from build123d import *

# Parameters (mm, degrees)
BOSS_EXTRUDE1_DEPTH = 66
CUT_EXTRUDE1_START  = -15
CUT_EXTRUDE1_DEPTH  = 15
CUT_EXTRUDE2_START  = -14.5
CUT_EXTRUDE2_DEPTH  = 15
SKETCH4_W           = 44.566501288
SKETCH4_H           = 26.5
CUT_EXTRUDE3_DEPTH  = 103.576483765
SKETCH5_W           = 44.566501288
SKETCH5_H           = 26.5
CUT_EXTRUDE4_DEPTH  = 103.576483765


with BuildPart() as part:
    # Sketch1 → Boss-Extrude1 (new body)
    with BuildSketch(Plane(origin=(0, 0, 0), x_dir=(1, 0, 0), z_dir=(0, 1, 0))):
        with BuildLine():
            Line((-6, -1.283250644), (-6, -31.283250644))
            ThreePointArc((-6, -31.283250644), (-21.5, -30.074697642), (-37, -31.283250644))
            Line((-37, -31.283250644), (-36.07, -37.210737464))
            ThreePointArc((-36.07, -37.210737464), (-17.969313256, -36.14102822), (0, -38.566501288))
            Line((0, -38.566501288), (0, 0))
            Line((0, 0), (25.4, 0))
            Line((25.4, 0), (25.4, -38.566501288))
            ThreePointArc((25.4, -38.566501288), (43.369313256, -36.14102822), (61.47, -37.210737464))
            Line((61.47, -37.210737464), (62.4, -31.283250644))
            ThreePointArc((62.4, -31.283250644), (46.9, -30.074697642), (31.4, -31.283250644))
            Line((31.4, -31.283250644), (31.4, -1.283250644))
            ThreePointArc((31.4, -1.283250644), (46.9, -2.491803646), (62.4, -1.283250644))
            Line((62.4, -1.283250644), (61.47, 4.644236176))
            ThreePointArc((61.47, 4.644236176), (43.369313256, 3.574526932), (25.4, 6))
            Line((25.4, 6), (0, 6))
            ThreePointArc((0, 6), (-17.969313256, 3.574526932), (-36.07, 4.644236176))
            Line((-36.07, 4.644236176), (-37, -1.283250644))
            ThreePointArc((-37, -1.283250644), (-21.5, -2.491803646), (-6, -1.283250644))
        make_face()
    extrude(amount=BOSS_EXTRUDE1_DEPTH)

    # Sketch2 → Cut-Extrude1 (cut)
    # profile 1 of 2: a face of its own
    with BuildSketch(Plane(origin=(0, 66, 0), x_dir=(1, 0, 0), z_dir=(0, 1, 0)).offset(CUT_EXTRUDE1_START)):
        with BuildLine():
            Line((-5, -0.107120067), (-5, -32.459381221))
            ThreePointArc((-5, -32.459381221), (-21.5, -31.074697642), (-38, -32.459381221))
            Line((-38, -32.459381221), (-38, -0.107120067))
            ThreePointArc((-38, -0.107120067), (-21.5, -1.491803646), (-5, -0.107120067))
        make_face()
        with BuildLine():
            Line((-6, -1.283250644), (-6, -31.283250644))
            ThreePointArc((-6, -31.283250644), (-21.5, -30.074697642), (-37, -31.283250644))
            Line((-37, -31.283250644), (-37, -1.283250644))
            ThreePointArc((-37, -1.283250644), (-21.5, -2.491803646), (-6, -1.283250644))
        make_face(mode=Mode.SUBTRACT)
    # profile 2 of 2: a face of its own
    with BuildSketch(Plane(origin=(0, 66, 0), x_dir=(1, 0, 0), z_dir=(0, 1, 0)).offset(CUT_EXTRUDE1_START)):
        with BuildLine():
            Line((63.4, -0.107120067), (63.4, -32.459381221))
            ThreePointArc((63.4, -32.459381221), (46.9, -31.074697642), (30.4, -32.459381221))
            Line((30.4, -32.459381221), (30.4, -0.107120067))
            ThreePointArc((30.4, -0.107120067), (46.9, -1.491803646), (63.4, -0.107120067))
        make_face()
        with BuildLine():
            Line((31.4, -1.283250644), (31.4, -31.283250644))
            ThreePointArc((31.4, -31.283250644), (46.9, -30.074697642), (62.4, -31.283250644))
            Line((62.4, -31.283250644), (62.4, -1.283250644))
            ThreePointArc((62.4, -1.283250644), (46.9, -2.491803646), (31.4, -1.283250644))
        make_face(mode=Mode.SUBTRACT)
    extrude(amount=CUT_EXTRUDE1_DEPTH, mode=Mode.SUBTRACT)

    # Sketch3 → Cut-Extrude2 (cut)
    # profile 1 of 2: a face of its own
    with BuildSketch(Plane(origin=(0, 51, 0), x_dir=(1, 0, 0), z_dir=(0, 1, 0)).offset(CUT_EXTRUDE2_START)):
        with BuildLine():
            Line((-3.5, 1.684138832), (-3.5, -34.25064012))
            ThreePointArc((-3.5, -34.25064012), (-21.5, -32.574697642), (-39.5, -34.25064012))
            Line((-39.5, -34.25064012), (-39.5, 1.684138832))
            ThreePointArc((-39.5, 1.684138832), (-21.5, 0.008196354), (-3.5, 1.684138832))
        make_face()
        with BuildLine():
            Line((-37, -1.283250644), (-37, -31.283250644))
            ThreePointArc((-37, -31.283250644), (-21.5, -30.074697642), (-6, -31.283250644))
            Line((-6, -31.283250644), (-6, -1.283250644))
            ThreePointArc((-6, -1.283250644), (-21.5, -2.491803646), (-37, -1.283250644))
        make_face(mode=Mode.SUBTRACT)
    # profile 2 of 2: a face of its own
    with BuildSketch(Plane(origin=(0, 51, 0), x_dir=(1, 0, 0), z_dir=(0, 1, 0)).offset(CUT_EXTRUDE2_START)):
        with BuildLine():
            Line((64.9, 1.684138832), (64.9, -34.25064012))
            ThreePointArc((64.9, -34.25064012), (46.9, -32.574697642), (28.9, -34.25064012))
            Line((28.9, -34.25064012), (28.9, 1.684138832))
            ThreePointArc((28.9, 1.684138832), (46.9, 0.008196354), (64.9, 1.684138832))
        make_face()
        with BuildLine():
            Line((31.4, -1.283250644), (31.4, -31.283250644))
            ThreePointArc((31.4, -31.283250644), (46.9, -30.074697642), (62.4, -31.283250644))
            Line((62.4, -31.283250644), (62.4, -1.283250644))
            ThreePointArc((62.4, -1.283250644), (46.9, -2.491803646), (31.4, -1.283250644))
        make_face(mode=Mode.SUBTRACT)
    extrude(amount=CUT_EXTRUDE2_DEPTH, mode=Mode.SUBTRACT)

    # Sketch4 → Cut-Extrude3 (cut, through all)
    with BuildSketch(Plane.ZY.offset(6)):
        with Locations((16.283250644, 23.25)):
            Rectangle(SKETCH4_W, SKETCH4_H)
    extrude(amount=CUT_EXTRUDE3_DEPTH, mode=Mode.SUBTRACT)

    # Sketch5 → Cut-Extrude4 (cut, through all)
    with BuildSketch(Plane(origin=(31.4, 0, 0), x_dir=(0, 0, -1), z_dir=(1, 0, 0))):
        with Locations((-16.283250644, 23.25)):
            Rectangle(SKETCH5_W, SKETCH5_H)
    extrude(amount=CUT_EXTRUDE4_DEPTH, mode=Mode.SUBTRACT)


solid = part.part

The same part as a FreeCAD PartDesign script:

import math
import FreeCAD as App
import Part
import Sketcher
Q = App.Units.Quantity


def add_polygon(sketch, points):
    """Adds a closed chain of lines whose ends are joined by coincident constraints."""
    first, n = sketch.GeometryCount, len(points)
    for a, b in zip(points, points[1:] + points[:1]):
        sketch.addGeometry(Part.LineSegment(App.Vector(*a, 0), App.Vector(*b, 0)), False)
    for i in range(n):
        sketch.addConstraint(Sketcher.Constraint("Coincident", first + i, 2, first + (i + 1) % n, 1))

doc = App.newDocument("Part")
params = doc.addObject("Spreadsheet::Sheet", "Params")
for row, (alias, value) in enumerate([
    ("sketch1_radius", "100 mm"),
    ("sketch1_radius2", "94 mm"),
    ("sketch1_height", "30 mm"),
    ("sketch1_width", "25.4 mm"),
    ("pad1_length", "66 mm"),
    ("sketch2_radius", "99 mm"),
    ("sketch2_radius2", "100 mm"),
    ("sketch2_height", "30 mm"),
    ("pocket1_length", "15 mm"),
    ("sketch3_radius", "100 mm"),
    ("sketch3_radius2", "97.5 mm"),
    ("sketch3_height", "30 mm"),
    ("pocket2_length", "15 mm"),
    ("sketch4_width", "26.5 mm"),
    ("sketch5_width", "26.5 mm"),
], start=1):
    params.set(f"A{row}", alias)
    params.set(f"B{row}", "=" + value)
    params.setAlias(f"B{row}", alias)

body = doc.addObject("PartDesign::Body", "Body")

# Sketch on XZ plane
sketch1 = body.newObject("Sketcher::SketchObject", "Sketch")
sketch1.AttachmentSupport = (doc.getObject("XZ_Plane"), [""])
sketch1.MapMode = "FlatFace"
sketch1.addGeometry([
    Part.LineSegment(App.Vector(-6, 1, 0), App.Vector(-6, 31, 0)),  # 0
    Part.ArcOfCircle(Part.Circle(App.Vector(-22, 130, 0), App.Vector(0, 0, 1), 100), math.radians(-98.92), math.radians(-81.08)),  # 1
    Part.LineSegment(App.Vector(-37, 31, 0), App.Vector(-36, 37, 0)),  # 2
    Part.ArcOfCircle(Part.Circle(App.Vector(-22, 130, 0), App.Vector(0, 0, 1), 94), math.radians(-99), math.radians(-77)),  # 3
    Part.LineSegment(App.Vector(0, 39, 0), App.Vector(0, 0, 0)),  # 4
    Part.LineSegment(App.Vector(0, 0, 0), App.Vector(25, 0, 0)),  # 5
    Part.LineSegment(App.Vector(25, 0, 0), App.Vector(25, 39, 0)),  # 6
    Part.ArcOfCircle(Part.Circle(App.Vector(47, 130, 0), App.Vector(0, 0, 1), 94), math.radians(-103), math.radians(-81)),  # 7
    Part.LineSegment(App.Vector(61, 37, 0), App.Vector(62, 31, 0)),  # 8
    Part.ArcOfCircle(Part.Circle(App.Vector(47, 130, 0), App.Vector(0, 0, 1), 100), math.radians(-98.92), math.radians(-81.08)),  # 9
    Part.LineSegment(App.Vector(31, 31, 0), App.Vector(31, 1, 0)),  # 10
    Part.ArcOfCircle(Part.Circle(App.Vector(47, -98, 0), App.Vector(0, 0, 1), 100), math.radians(81.08), math.radians(98.92)),  # 11
    Part.LineSegment(App.Vector(62, 1, 0), App.Vector(61, -5, 0)),  # 12
    Part.ArcOfCircle(Part.Circle(App.Vector(47, -98, 0), App.Vector(0, 0, 1), 94), math.radians(81), math.radians(103)),  # 13
    Part.LineSegment(App.Vector(25, -6, 0), App.Vector(0, -6, 0)),  # 14
    Part.ArcOfCircle(Part.Circle(App.Vector(-22, -98, 0), App.Vector(0, 0, 1), 94), math.radians(77), math.radians(99)),  # 15
    Part.LineSegment(App.Vector(-36, -5, 0), App.Vector(-37, 1, 0)),  # 16
    Part.ArcOfCircle(Part.Circle(App.Vector(-22, -98, 0), App.Vector(0, 0, 1), 100), math.radians(81.08), math.radians(98.92)),  # 17
], False)
sketch1.addConstraint([
    Sketcher.Constraint("Coincident", 0, 2, 1, 2),
    Sketcher.Constraint("Coincident", 1, 1, 2, 1),
    Sketcher.Constraint("Coincident", 2, 2, 3, 1),
    Sketcher.Constraint("Coincident", 3, 2, 4, 1),
    Sketcher.Constraint("Coincident", 4, 2, 5, 1),
    Sketcher.Constraint("Coincident", 5, 2, 6, 1),
    Sketcher.Constraint("Coincident", 6, 2, 7, 1),
    Sketcher.Constraint("Coincident", 7, 2, 8, 1),
    Sketcher.Constraint("Coincident", 8, 2, 9, 2),
    Sketcher.Constraint("Coincident", 9, 1, 10, 1),
    Sketcher.Constraint("Coincident", 10, 2, 11, 2),
    Sketcher.Constraint("Coincident", 11, 1, 12, 1),
    Sketcher.Constraint("Coincident", 12, 2, 13, 1),
    Sketcher.Constraint("Coincident", 13, 2, 14, 1),
    Sketcher.Constraint("Coincident", 14, 2, 15, 1),
    Sketcher.Constraint("Coincident", 15, 2, 16, 1),
    Sketcher.Constraint("Coincident", 16, 2, 17, 2),
    Sketcher.Constraint("Coincident", 17, 1, 0, 1),
    Sketcher.Constraint("Vertical", 0),
    Sketcher.Constraint("Vertical", 4),
    Sketcher.Constraint("Horizontal", 5),
    Sketcher.Constraint("Vertical", 6),
    Sketcher.Constraint("Vertical", 10),
    Sketcher.Constraint("Horizontal", 14),
    Sketcher.Constraint("Coincident", 4, 2, -1, 1),
    Sketcher.Constraint("Coincident", 3, 3, 1, 3),
    Sketcher.Constraint("Coincident", 9, 3, 7, 3),
    Sketcher.Constraint("Coincident", 13, 3, 11, 3),
    Sketcher.Constraint("Coincident", 17, 3, 15, 3),
    Sketcher.Constraint("Equal", 3, 7),
    Sketcher.Constraint("Equal", 1, 9),
    Sketcher.Constraint("Equal", 9, 11),
    Sketcher.Constraint("Equal", 7, 13),
    Sketcher.Constraint("Equal", 13, 15),
    Sketcher.Constraint("Equal", 11, 17),
    Sketcher.Constraint("PointOnObject", 14, 2, -2),
    Sketcher.Constraint("Parallel", 2, 12),
    Sketcher.Constraint("Parallel", 8, 16),
    Sketcher.Constraint("Horizontal", 3, 3, 7, 3),
    Sketcher.Constraint("Horizontal", 13, 3, 15, 3),
    Sketcher.Constraint("Horizontal", 0, 2, 1, 1),
    Sketcher.Constraint("Horizontal", 3, 2, 6, 2),
    Sketcher.Constraint("Horizontal", 2, 2, 7, 2),
    Sketcher.Constraint("Horizontal", 1, 1, 8, 2),
    Sketcher.Constraint("Horizontal", 8, 2, 9, 1),
    Sketcher.Constraint("Horizontal", 10, 2, 11, 1),
    Sketcher.Constraint("Horizontal", 12, 2, 15, 2),
    Sketcher.Constraint("Horizontal", 16, 2, 17, 1),
    Sketcher.Constraint("Vertical", 9, 3, 11, 3),
    Sketcher.Constraint("Radius", 1, Q("100 mm")),
    Sketcher.Constraint("Radius", 3, Q("94 mm")),
    Sketcher.Constraint("DistanceY", 0, 1, 0, 2, Q("30 mm")),
    Sketcher.Constraint("DistanceX", 5, 1, 5, 2, Q("25.4 mm")),
    Sketcher.Constraint("DistanceX", 0, 2, -1, 1, Q("6 mm")),
    Sketcher.Constraint("DistanceX", 1, 1, -1, 1, Q("37 mm")),
    Sketcher.Constraint("DistanceY", 13, 2, -1, 1, Q("6 mm")),
    Sketcher.Constraint("DistanceX", 2, 2, -1, 1, Q("36.07 mm")),
])
sketch1.setExpression("Constraints[49]", "Params.sketch1_radius")
sketch1.setExpression("Constraints[50]", "Params.sketch1_radius2")
sketch1.setExpression("Constraints[51]", "Params.sketch1_height")
sketch1.setExpression("Constraints[52]", "Params.sketch1_width")
pad1 = body.newObject("PartDesign::Pad", "Pad")
pad1.Profile = sketch1
pad1.setExpression("Length", "Params.pad1_length")
pad1.Reversed = True

# Sketch on XZ plane
sketch2 = body.newObject("Sketcher::SketchObject", "Sketch001")
sketch2.AttachmentSupport = (doc.getObject("XZ_Plane"), [""])
sketch2.MapMode = "FlatFace"
sketch2.AttachmentOffset = App.Placement(App.Vector(0, 0, -51), App.Rotation())
sketch2.addGeometry([
    Part.LineSegment(App.Vector(-5, 32, 0), App.Vector(-5, 0, 0)),  # 0
    Part.ArcOfCircle(Part.Circle(App.Vector(-22, -98, 0), App.Vector(0, 0, 1), 99), math.radians(80.41), math.radians(99.59)),  # 1
    Part.LineSegment(App.Vector(-38, 0, 0), App.Vector(-38, 32, 0)),  # 2
    Part.ArcOfCircle(Part.Circle(App.Vector(-22, 130, 0), App.Vector(0, 0, 1), 99), math.radians(-99.59), math.radians(-80.41)),  # 3
    Part.LineSegment(App.Vector(-6, 1, 0), App.Vector(-6, 31, 0)),  # 4
    Part.ArcOfCircle(Part.Circle(App.Vector(-22, 130, 0), App.Vector(0, 0, 1), 100), math.radians(-98.92), math.radians(-81.08)),  # 5
    Part.LineSegment(App.Vector(-37, 31, 0), App.Vector(-37, 1, 0)),  # 6
    Part.ArcOfCircle(Part.Circle(App.Vector(-22, -98, 0), App.Vector(0, 0, 1), 100), math.radians(81.08), math.radians(98.92)),  # 7
    Part.LineSegment(App.Vector(63, 32, 0), App.Vector(63, 0, 0)),  # 8
    Part.ArcOfCircle(Part.Circle(App.Vector(47, -98, 0), App.Vector(0, 0, 1), 99), math.radians(80.41), math.radians(99.59)),  # 9
    Part.LineSegment(App.Vector(30, 0, 0), App.Vector(30, 32, 0)),  # 10
    Part.ArcOfCircle(Part.Circle(App.Vector(47, 130, 0), App.Vector(0, 0, 1), 99), math.radians(-99.59), math.radians(-80.41)),  # 11
    Part.ArcOfCircle(Part.Circle(App.Vector(47, -98, 0), App.Vector(0, 0, 1), 100), math.radians(81.08), math.radians(98.92)),  # 12
    Part.LineSegment(App.Vector(62, 1, 0), App.Vector(62, 31, 0)),  # 13
    Part.ArcOfCircle(Part.Circle(App.Vector(47, 130, 0), App.Vector(0, 0, 1), 100), math.radians(-98.92), math.radians(-81.08)),  # 14
    Part.LineSegment(App.Vector(31, 31, 0), App.Vector(31, 1, 0)),  # 15
], False)
sketch2.addConstraint([
    Sketcher.Constraint("Coincident", 0, 2, 1, 1),
    Sketcher.Constraint("Coincident", 1, 2, 2, 1),
    Sketcher.Constraint("Coincident", 2, 2, 3, 1),
    Sketcher.Constraint("Coincident", 3, 2, 0, 1),
    Sketcher.Constraint("Coincident", 4, 2, 5, 2),
    Sketcher.Constraint("Coincident", 5, 1, 6, 1),
    Sketcher.Constraint("Coincident", 6, 2, 7, 2),
    Sketcher.Constraint("Coincident", 7, 1, 4, 1),
    Sketcher.Constraint("Coincident", 8, 2, 9, 1),
    Sketcher.Constraint("Coincident", 9, 2, 10, 1),
    Sketcher.Constraint("Coincident", 10, 2, 11, 1),
    Sketcher.Constraint("Coincident", 11, 2, 8, 1),
    Sketcher.Constraint("Coincident", 12, 1, 13, 1),
    Sketcher.Constraint("Coincident", 13, 2, 14, 2),
    Sketcher.Constraint("Coincident", 14, 1, 15, 1),
    Sketcher.Constraint("Coincident", 15, 2, 12, 2),
    Sketcher.Constraint("Vertical", 0),
    Sketcher.Constraint("Vertical", 2),
    Sketcher.Constraint("Vertical", 4),
    Sketcher.Constraint("Vertical", 6),
    Sketcher.Constraint("Vertical", 8),
    Sketcher.Constraint("Vertical", 10),
    Sketcher.Constraint("Vertical", 13),
    Sketcher.Constraint("Vertical", 15),
    Sketcher.Constraint("Coincident", 5, 3, 3, 3),
    Sketcher.Constraint("Coincident", 7, 3, 1, 3),
    Sketcher.Constraint("Coincident", 12, 3, 9, 3),
    Sketcher.Constraint("Coincident", 14, 3, 11, 3),
    Sketcher.Constraint("Equal", 1, 3),
    Sketcher.Constraint("Equal", 5, 7),
    Sketcher.Constraint("Equal", 3, 9),
    Sketcher.Constraint("Equal", 9, 11),
    Sketcher.Constraint("Equal", 7, 12),
    Sketcher.Constraint("Equal", 12, 14),
    Sketcher.Constraint("Horizontal", 7, 3, 9, 3),
    Sketcher.Constraint("Horizontal", 5, 3, 11, 3),
    Sketcher.Constraint("Horizontal", 0, 2, 1, 2),
    Sketcher.Constraint("Horizontal", 2, 2, 3, 2),
    Sketcher.Constraint("Horizontal", 4, 2, 5, 1),
    Sketcher.Constraint("Horizontal", 1, 2, 8, 2),
    Sketcher.Constraint("Horizontal", 8, 2, 9, 2),
    Sketcher.Constraint("Horizontal", 3, 2, 10, 2),
    Sketcher.Constraint("Horizontal", 7, 1, 12, 1),
    Sketcher.Constraint("Horizontal", 13, 2, 14, 1),
    Sketcher.Constraint("Radius", 1, Q("99 mm")),
    Sketcher.Constraint("Radius", 5, Q("100 mm")),
    Sketcher.Constraint("DistanceY", 4, 1, 4, 2, Q("30 mm")),
    Sketcher.Constraint("DistanceX", 0, 2, -1, 1, Q("5 mm")),
    Sketcher.Constraint("DistanceX", 1, 2, -1, 1, Q("38 mm")),
    Sketcher.Constraint("DistanceX", 4, 2, -1, 1, Q("6 mm")),
    Sketcher.Constraint("DistanceX", -1, 1, 9, 3, Q("46.9 mm")),
    Sketcher.Constraint("DistanceY", -1, 1, 0, 2, Q("0.10712 mm")),
])
sketch2.setExpression("Constraints[44]", "Params.sketch2_radius")
sketch2.setExpression("Constraints[45]", "Params.sketch2_radius2")
sketch2.setExpression("Constraints[46]", "Params.sketch2_height")
pocket1 = body.newObject("PartDesign::Pocket", "Pocket")
pocket1.Profile = sketch2
pocket1.setExpression("Length", "Params.pocket1_length")

# Sketch on XZ plane
sketch3 = body.newObject("Sketcher::SketchObject", "Sketch002")
sketch3.AttachmentSupport = (doc.getObject("XZ_Plane"), [""])
sketch3.MapMode = "FlatFace"
sketch3.AttachmentOffset = App.Placement(App.Vector(0, 0, -36.5), App.Rotation())
sketch3.addGeometry([
    Part.LineSegment(App.Vector(-4, 34, 0), App.Vector(-4, -2, 0)),  # 0
    Part.ArcOfCircle(Part.Circle(App.Vector(-22, -98, 0), App.Vector(0, 0, 1), 97), math.radians(79), math.radians(101)),  # 1
    Part.LineSegment(App.Vector(-40, -2, 0), App.Vector(-40, 34, 0)),  # 2
    Part.ArcOfCircle(Part.Circle(App.Vector(-22, 130, 0), App.Vector(0, 0, 1), 97), math.radians(-101), math.radians(-79)),  # 3
    Part.ArcOfCircle(Part.Circle(App.Vector(-22, -98, 0), App.Vector(0, 0, 1), 100), math.radians(81.08), math.radians(98.92)),  # 4
    Part.LineSegment(App.Vector(-6, 1, 0), App.Vector(-6, 31, 0)),  # 5
    Part.ArcOfCircle(Part.Circle(App.Vector(-22, 130, 0), App.Vector(0, 0, 1), 100), math.radians(-98.92), math.radians(-81.08)),  # 6
    Part.LineSegment(App.Vector(-37, 31, 0), App.Vector(-37, 1, 0)),  # 7
    Part.LineSegment(App.Vector(65, 34, 0), App.Vector(65, -2, 0)),  # 8
    Part.ArcOfCircle(Part.Circle(App.Vector(47, -98, 0), App.Vector(0, 0, 1), 97), math.radians(79), math.radians(101)),  # 9
    Part.LineSegment(App.Vector(29, -2, 0), App.Vector(29, 34, 0)),  # 10
    Part.ArcOfCircle(Part.Circle(App.Vector(47, 130, 0), App.Vector(0, 0, 1), 97), math.radians(-101), math.radians(-79)),  # 11
    Part.ArcOfCircle(Part.Circle(App.Vector(47, -98, 0), App.Vector(0, 0, 1), 100), math.radians(81.08), math.radians(98.92)),  # 12
    Part.LineSegment(App.Vector(62, 1, 0), App.Vector(62, 31, 0)),  # 13
    Part.ArcOfCircle(Part.Circle(App.Vector(47, 130, 0), App.Vector(0, 0, 1), 100), math.radians(-98.92), math.radians(-81.08)),  # 14
    Part.LineSegment(App.Vector(31, 31, 0), App.Vector(31, 1, 0)),  # 15
], False)
sketch3.addConstraint([
    Sketcher.Constraint("Coincident", 0, 2, 1, 1),
    Sketcher.Constraint("Coincident", 1, 2, 2, 1),
    Sketcher.Constraint("Coincident", 2, 2, 3, 1),
    Sketcher.Constraint("Coincident", 3, 2, 0, 1),
    Sketcher.Constraint("Coincident", 4, 1, 5, 1),
    Sketcher.Constraint("Coincident", 5, 2, 6, 2),
    Sketcher.Constraint("Coincident", 6, 1, 7, 1),
    Sketcher.Constraint("Coincident", 7, 2, 4, 2),
    Sketcher.Constraint("Coincident", 8, 2, 9, 1),
    Sketcher.Constraint("Coincident", 9, 2, 10, 1),
    Sketcher.Constraint("Coincident", 10, 2, 11, 1),
    Sketcher.Constraint("Coincident", 11, 2, 8, 1),
    Sketcher.Constraint("Coincident", 12, 1, 13, 1),
    Sketcher.Constraint("Coincident", 13, 2, 14, 2),
    Sketcher.Constraint("Coincident", 14, 1, 15, 1),
    Sketcher.Constraint("Coincident", 15, 2, 12, 2),
    Sketcher.Constraint("Vertical", 0),
    Sketcher.Constraint("Vertical", 2),
    Sketcher.Constraint("Vertical", 5),
    Sketcher.Constraint("Vertical", 7),
    Sketcher.Constraint("Vertical", 8),
    Sketcher.Constraint("Vertical", 10),
    Sketcher.Constraint("Vertical", 13),
    Sketcher.Constraint("Vertical", 15),
    Sketcher.Constraint("Coincident", 4, 3, 1, 3),
    Sketcher.Constraint("Coincident", 6, 3, 3, 3),
    Sketcher.Constraint("Coincident", 12, 3, 9, 3),
    Sketcher.Constraint("Coincident", 14, 3, 11, 3),
    Sketcher.Constraint("Equal", 1, 3),
    Sketcher.Constraint("Equal", 4, 6),
    Sketcher.Constraint("Equal", 3, 9),
    Sketcher.Constraint("Equal", 9, 11),
    Sketcher.Constraint("Equal", 6, 12),
    Sketcher.Constraint("Equal", 12, 14),
    Sketcher.Constraint("Horizontal", 4, 3, 9, 3),
    Sketcher.Constraint("Horizontal", 6, 3, 11, 3),
    Sketcher.Constraint("Horizontal", 0, 2, 1, 2),
    Sketcher.Constraint("Horizontal", 2, 2, 3, 2),
    Sketcher.Constraint("Horizontal", 5, 2, 6, 1),
    Sketcher.Constraint("Horizontal", 1, 2, 8, 2),
    Sketcher.Constraint("Horizontal", 8, 2, 9, 2),
    Sketcher.Constraint("Horizontal", 3, 2, 10, 2),
    Sketcher.Constraint("Horizontal", 7, 2, 12, 1),
    Sketcher.Constraint("Horizontal", 13, 2, 14, 1),
    Sketcher.Constraint("Radius", 4, Q("100 mm")),
    Sketcher.Constraint("Radius", 1, Q("97.5 mm")),
    Sketcher.Constraint("DistanceY", 5, 1, 5, 2, Q("30 mm")),
    Sketcher.Constraint("DistanceX", 4, 1, -1, 1, Q("6 mm")),
    Sketcher.Constraint("DistanceX", 6, 1, -1, 1, Q("37 mm")),
    Sketcher.Constraint("DistanceX", 4, 3, 0, 2, Q("18 mm")),
    Sketcher.Constraint("DistanceX", -1, 1, 9, 3, Q("46.9 mm")),
    Sketcher.Constraint("DistanceY", 0, 2, -1, 1, Q("1.684139 mm")),
])
sketch3.setExpression("Constraints[44]", "Params.sketch3_radius")
sketch3.setExpression("Constraints[45]", "Params.sketch3_radius2")
sketch3.setExpression("Constraints[46]", "Params.sketch3_height")
pocket2 = body.newObject("PartDesign::Pocket", "Pocket001")
pocket2.Profile = sketch3
pocket2.setExpression("Length", "Params.pocket2_length")

# Sketch on YZ plane
sketch4 = body.newObject("Sketcher::SketchObject", "Sketch003")
sketch4.AttachmentSupport = (doc.getObject("YZ_Plane"), [""])
sketch4.MapMode = "FlatFace"
sketch4.AttachmentOffset = App.Placement(App.Vector(0, 0, -6), App.Rotation())
add_polygon(sketch4, [(36, -6), (10, -6), (10, 39), (36, 39)])  # lines 0-3
sketch4.addConstraint([
    Sketcher.Constraint("Horizontal", 0),
    Sketcher.Constraint("Vertical", 1),
    Sketcher.Constraint("Horizontal", 2),
    Sketcher.Constraint("Vertical", 3),
    Sketcher.Constraint("DistanceX", 0, 2, 0, 1, Q("26.5 mm")),
    Sketcher.Constraint("DistanceX", -1, 1, 0, 2, Q("10 mm")),
    Sketcher.Constraint("DistanceY", 0, 2, -1, 1, Q("6 mm")),
    Sketcher.Constraint("DistanceY", 1, 1, 1, 2, Q("44.566501 mm")),
])
sketch4.setExpression("Constraints[8]", "Params.sketch4_width")
pocket3 = body.newObject("PartDesign::Pocket", "Pocket002")
pocket3.Profile = sketch4
pocket3.Type = "ThroughAll"

# Sketch on YZ plane
sketch5 = body.newObject("Sketcher::SketchObject", "Sketch004")
sketch5.AttachmentSupport = (doc.getObject("YZ_Plane"), [""])
sketch5.MapMode = "FlatFace"
sketch5.AttachmentOffset = App.Placement(App.Vector(0, 0, 31.4), App.Rotation())
add_polygon(sketch5, [(36, 39), (10, 39), (10, -6), (36, -6)])  # lines 0-3
sketch5.addConstraint([
    Sketcher.Constraint("Horizontal", 0),
    Sketcher.Constraint("Vertical", 1),
    Sketcher.Constraint("Horizontal", 2),
    Sketcher.Constraint("Vertical", 3),
    Sketcher.Constraint("DistanceX", 0, 2, 0, 1, Q("26.5 mm")),
    Sketcher.Constraint("DistanceX", -1, 1, 0, 2, Q("10 mm")),
    Sketcher.Constraint("DistanceY", 1, 2, -1, 1, Q("6 mm")),
    Sketcher.Constraint("DistanceY", 1, 2, 1, 1, Q("44.566501 mm")),
])
sketch5.setExpression("Constraints[8]", "Params.sketch5_width")
pocket4 = body.newObject("PartDesign::Pocket", "Pocket003")
pocket4.Profile = sketch5
pocket4.Type = "ThroughAll"
pocket4.Reversed = True

doc.recompute()
